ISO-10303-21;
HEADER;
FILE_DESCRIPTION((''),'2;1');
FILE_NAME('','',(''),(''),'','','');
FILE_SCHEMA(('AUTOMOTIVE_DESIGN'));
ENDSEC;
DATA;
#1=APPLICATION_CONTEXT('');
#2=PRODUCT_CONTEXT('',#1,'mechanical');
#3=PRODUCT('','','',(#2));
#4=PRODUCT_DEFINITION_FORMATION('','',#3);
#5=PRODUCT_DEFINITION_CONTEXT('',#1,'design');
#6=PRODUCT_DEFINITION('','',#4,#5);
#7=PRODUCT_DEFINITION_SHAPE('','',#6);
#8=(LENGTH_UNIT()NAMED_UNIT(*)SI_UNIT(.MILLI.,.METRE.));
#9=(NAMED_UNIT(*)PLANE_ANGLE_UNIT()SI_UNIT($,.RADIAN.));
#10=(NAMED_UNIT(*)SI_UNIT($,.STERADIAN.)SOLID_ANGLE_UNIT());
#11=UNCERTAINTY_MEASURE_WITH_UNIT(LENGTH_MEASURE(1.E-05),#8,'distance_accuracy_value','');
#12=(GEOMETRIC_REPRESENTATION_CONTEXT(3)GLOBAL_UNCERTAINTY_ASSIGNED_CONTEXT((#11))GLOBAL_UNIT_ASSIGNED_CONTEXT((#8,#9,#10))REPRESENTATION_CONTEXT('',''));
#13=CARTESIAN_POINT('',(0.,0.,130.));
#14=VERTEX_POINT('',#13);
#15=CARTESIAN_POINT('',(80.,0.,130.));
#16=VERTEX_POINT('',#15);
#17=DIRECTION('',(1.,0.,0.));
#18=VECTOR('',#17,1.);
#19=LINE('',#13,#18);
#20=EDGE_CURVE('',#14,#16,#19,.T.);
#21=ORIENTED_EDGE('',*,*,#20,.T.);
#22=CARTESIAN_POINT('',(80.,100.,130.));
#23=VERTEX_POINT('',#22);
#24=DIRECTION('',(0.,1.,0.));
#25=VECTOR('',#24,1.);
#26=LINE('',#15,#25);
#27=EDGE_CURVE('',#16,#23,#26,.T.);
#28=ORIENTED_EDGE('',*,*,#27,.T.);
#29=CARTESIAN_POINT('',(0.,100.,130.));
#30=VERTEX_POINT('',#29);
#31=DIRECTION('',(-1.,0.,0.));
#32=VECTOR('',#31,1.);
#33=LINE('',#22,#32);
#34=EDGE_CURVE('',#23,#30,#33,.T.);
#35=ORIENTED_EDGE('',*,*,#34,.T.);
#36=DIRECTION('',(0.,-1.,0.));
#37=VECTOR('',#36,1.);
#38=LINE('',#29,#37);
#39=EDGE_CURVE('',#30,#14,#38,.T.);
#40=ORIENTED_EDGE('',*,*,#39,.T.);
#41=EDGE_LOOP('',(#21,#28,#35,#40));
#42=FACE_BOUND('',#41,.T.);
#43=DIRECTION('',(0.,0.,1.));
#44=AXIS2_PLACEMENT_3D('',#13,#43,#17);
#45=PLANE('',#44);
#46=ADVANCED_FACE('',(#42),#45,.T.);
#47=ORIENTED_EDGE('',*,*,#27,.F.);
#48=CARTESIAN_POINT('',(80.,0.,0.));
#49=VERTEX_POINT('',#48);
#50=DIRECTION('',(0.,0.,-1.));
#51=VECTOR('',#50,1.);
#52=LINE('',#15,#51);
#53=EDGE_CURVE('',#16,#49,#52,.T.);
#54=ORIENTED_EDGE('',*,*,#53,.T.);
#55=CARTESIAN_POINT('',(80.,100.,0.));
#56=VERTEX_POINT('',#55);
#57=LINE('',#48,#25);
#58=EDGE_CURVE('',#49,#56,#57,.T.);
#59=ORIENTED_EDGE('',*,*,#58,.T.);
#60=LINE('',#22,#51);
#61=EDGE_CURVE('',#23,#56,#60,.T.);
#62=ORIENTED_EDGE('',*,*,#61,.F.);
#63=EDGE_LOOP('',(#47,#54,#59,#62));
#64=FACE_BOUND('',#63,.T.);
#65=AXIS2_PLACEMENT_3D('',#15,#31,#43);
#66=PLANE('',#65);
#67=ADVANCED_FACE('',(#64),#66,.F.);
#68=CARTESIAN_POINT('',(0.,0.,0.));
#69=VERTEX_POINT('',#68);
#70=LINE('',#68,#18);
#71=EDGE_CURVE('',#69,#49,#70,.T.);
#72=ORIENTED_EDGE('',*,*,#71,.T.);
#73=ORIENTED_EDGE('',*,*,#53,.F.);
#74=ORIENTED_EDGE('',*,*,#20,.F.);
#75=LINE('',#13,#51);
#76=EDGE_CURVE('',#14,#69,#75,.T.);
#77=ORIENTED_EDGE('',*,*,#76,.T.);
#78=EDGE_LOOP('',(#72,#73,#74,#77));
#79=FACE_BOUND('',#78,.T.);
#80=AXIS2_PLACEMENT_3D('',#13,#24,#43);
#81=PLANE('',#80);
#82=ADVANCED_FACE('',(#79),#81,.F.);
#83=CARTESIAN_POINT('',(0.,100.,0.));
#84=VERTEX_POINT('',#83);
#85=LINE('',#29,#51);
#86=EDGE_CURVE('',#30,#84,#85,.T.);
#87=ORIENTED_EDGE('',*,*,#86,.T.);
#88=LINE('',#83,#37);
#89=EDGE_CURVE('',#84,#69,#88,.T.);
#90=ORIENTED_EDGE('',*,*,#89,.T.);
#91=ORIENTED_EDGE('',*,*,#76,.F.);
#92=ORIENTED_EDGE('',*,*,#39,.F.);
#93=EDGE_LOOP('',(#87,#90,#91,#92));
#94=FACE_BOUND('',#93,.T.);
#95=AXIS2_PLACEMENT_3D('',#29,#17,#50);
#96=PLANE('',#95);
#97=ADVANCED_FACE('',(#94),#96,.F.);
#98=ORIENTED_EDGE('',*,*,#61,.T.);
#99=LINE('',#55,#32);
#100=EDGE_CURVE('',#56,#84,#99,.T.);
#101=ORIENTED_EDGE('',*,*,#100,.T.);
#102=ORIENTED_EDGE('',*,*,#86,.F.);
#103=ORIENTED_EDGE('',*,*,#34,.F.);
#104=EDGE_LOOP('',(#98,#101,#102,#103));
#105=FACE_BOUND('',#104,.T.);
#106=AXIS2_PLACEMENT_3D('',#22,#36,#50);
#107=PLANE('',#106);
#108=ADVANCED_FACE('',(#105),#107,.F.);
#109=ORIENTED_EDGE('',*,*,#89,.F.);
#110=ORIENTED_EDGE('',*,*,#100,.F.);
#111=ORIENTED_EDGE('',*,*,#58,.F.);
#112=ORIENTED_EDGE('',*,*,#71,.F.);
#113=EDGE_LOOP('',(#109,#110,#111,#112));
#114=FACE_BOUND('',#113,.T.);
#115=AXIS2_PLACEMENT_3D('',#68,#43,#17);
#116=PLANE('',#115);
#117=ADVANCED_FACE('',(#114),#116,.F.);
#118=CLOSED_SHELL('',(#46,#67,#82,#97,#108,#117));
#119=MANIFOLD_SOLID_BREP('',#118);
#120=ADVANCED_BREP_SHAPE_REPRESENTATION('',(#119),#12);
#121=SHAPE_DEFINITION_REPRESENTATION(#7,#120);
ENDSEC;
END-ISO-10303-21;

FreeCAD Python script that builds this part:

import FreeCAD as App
import Part
import Sketcher
from FreeCAD import Vector
Q = App.Units.Quantity


def add_polygon(sketch, points):
    """Adds a closed chain of lines whose ends are joined by coincident constraints."""
    first, n = sketch.GeometryCount, len(points)
    for a, b in zip(points, points[1:] + points[:1]):
        sketch.addGeometry(Part.LineSegment(App.Vector(*a, 0), App.Vector(*b, 0)), False)
    for i in range(n):
        sketch.addConstraint(Sketcher.Constraint("Coincident", first + i, 2, first + (i + 1) % n, 1))

doc = App.newDocument("Part")
body = doc.addObject("PartDesign::Body", "Body")

sketch1 = body.newObject("Sketcher::SketchObject", "Sketch")
sketch1.AttachmentSupport = (doc.getObject("XY_Plane"), [""])
sketch1.MapMode = "FlatFace"
add_polygon(sketch1, [(0, 100), (0, 0), (80, 0), (80, 100)])
sketch1.addConstraint([
    Sketcher.Constraint("Vertical", 0),
    Sketcher.Constraint("Horizontal", 1),
    Sketcher.Constraint("Vertical", 2),
    Sketcher.Constraint("Horizontal", 3),
    Sketcher.Constraint("Coincident", 0, 2, -1, 1),
    Sketcher.Constraint("DistanceX", 1, 1, 1, 2, Q("80 mm")),
    Sketcher.Constraint("DistanceY", 0, 2, 0, 1, Q("100 mm")),
])
pad1 = body.newObject("PartDesign::Pad", "Pad")
pad1.Profile = sketch1
pad1.Length = 130

doc.recompute()
